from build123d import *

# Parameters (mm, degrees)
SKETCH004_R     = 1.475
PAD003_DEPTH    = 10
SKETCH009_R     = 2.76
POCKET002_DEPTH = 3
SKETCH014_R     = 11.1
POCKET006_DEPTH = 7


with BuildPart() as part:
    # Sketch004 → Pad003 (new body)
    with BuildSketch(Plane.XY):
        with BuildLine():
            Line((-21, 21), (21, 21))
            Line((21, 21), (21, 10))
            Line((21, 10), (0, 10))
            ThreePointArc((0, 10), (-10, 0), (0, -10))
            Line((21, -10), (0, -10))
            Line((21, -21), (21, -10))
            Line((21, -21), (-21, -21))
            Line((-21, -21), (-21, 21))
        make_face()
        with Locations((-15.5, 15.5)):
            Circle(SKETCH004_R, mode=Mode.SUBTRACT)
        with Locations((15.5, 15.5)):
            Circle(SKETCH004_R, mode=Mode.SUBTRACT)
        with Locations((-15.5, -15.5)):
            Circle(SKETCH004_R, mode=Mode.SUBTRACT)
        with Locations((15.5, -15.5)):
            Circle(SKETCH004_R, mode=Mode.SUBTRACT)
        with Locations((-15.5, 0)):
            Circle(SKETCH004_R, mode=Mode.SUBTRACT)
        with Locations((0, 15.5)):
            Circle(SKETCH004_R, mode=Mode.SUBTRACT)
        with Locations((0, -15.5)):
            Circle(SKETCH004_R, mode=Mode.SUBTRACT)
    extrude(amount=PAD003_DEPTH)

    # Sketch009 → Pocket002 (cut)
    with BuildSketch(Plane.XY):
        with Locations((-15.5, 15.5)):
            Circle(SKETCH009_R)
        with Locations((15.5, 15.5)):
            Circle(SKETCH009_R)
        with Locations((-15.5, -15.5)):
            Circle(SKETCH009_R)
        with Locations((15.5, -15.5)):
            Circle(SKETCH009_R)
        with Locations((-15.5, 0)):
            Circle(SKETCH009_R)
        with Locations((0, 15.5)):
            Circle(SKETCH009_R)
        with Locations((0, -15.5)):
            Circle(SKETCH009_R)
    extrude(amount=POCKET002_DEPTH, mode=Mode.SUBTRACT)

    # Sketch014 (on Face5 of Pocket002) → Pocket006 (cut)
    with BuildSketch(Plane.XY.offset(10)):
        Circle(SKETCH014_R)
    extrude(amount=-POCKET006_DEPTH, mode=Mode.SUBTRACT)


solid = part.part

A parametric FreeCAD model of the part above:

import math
import FreeCAD as App
import Part
import Sketcher

doc = App.newDocument("Part")
body = doc.addObject("PartDesign::Body", "Body")

# Sketch on XY plane
sketch1 = body.newObject("Sketcher::SketchObject", "Sketch")
sketch1.AttachmentSupport = (doc.getObject("XY_Plane"), [""])
sketch1.MapMode = "FlatFace"
sketch1.addGeometry(Part.LineSegment(App.Vector(21, 21, 0), App.Vector(-21, 21, 0)), False)
sketch1.addGeometry(Part.LineSegment(App.Vector(-21, 21, 0), App.Vector(-21, -21, 0)), False)
sketch1.addGeometry(Part.LineSegment(App.Vector(-21, -21, 0), App.Vector(21, -21, 0)), False)
sketch1.addGeometry(Part.LineSegment(App.Vector(21, -21, 0), App.Vector(21, -10, 0)), False)
sketch1.addGeometry(Part.LineSegment(App.Vector(21, -10, 0), App.Vector(0, -10, 0)), False)
sketch1.addGeometry(Part.ArcOfCircle(Part.Circle(App.Vector(0, 0, 0), App.Vector(0, 0, 1), 10), math.radians(90), math.radians(270)), False)
sketch1.addGeometry(Part.LineSegment(App.Vector(0, 10, 0), App.Vector(21, 10, 0)), False)
sketch1.addGeometry(Part.LineSegment(App.Vector(21, 10, 0), App.Vector(21, 21, 0)), False)
sketch1.addGeometry(Part.Circle(App.Vector(15.5, -15.5, 0), App.Vector(0, 0, 1), 1.475), False)
sketch1.addGeometry(Part.Circle(App.Vector(0, -15.5, 0), App.Vector(0, 0, 1), 1.475), False)
sketch1.addGeometry(Part.Circle(App.Vector(-15.5, -15.5, 0), App.Vector(0, 0, 1), 1.475), False)
sketch1.addGeometry(Part.Circle(App.Vector(15.5, 15.5, 0), App.Vector(0, 0, 1), 1.475), False)
sketch1.addGeometry(Part.Circle(App.Vector(-15.5, 0, 0), App.Vector(0, 0, 1), 1.475), False)
sketch1.addGeometry(Part.Circle(App.Vector(0, 15.5, 0), App.Vector(0, 0, 1), 1.475), False)
sketch1.addGeometry(Part.Circle(App.Vector(-15.5, 15.5, 0), App.Vector(0, 0, 1), 1.475), False)
sketch1.addConstraint(Sketcher.Constraint("Coincident", 0, 2, 1, 1))
sketch1.addConstraint(Sketcher.Constraint("Coincident", 1, 2, 2, 1))
sketch1.addConstraint(Sketcher.Constraint("Coincident", 2, 2, 3, 1))
sketch1.addConstraint(Sketcher.Constraint("Coincident", 3, 2, 4, 1))
sketch1.addConstraint(Sketcher.Constraint("Tangent", 4, 2, 5, 2))
sketch1.addConstraint(Sketcher.Constraint("Tangent", 5, 1, 6, 1))
sketch1.addConstraint(Sketcher.Constraint("Coincident", 6, 2, 7, 1))
sketch1.addConstraint(Sketcher.Constraint("Coincident", 7, 2, 0, 1))
sketch1.addConstraint(Sketcher.Constraint("Horizontal", 0))
sketch1.addConstraint(Sketcher.Constraint("Vertical", 1))
sketch1.addConstraint(Sketcher.Constraint("Horizontal", 2))
sketch1.addConstraint(Sketcher.Constraint("Vertical", 3))
sketch1.addConstraint(Sketcher.Constraint("Horizontal", 4))
sketch1.addConstraint(Sketcher.Constraint("Horizontal", 6))
sketch1.addConstraint(Sketcher.Constraint("Vertical", 7))
sketch1.addConstraint(Sketcher.Constraint("Coincident", 5, 3, -1, 1))
sketch1.addConstraint(Sketcher.Constraint("Equal", 8, 9))
sketch1.addConstraint(Sketcher.Constraint("Equal", 9, 10))
sketch1.addConstraint(Sketcher.Constraint("Equal", 10, 11))
sketch1.addConstraint(Sketcher.Constraint("Equal", 11, 12))
sketch1.addConstraint(Sketcher.Constraint("Equal", 12, 13))
sketch1.addConstraint(Sketcher.Constraint("Equal", 13, 14))
sketch1.addConstraint(Sketcher.Constraint("Symmetric", 10, 3, 11, 3, -1, 1))
sketch1.addConstraint(Sketcher.Constraint("Symmetric", 9, 3, 13, 3, -1, 1))
sketch1.addConstraint(Sketcher.Constraint("Symmetric", 8, 3, 14, 3, -1, 1))
sketch1.addConstraint(Sketcher.Constraint("Symmetric", 0, 2, 2, 2, -1, 1))
sketch1.addConstraint(Sketcher.Constraint("Symmetric", 8, 3, 10, 3, -2))
sketch1.addConstraint(Sketcher.Constraint("PointOnObject", 9, 3, -2))
sketch1.addConstraint(Sketcher.Constraint("PointOnObject", 12, 3, -1))
sketch1.addConstraint(Sketcher.Constraint("Horizontal", 8, 3, 9, 3))
sketch1.addConstraint(Sketcher.Constraint("Vertical", 10, 3, 12, 3))
sketch1.addConstraint(Sketcher.Constraint("Vertical", 3, 2, 6, 2))
sketch1.addConstraint(Sketcher.Constraint("Equal", 2, 1))
sketch1.addConstraint(Sketcher.Constraint("Radius", 5, 10.0))
sketch1.addConstraint(Sketcher.Constraint("Diameter", 8, 2.95))
sketch1.addConstraint(Sketcher.Constraint("DistanceX", 0, 2, 0, 1, 42.0))
sketch1.addConstraint(Sketcher.Constraint("DistanceX", 10, 3, 8, 3, 31.0))
sketch1.addConstraint(Sketcher.Constraint("DistanceY", 8, 3, 11, 3, 31.0))
pad1 = body.newObject("PartDesign::Pad", "Pad")
pad1.Profile = sketch1
pad1.Length = 10

# Sketch on XY plane
sketch2 = body.newObject("Sketcher::SketchObject", "Sketch001")
sketch2.AttachmentSupport = (doc.getObject("XY_Plane"), [""])
sketch2.MapMode = "FlatFace"
sketch2.addGeometry(Part.Circle(App.Vector(-15.5, 15.5, 0), App.Vector(0, 0, 1), 2.76), False)
sketch2.addGeometry(Part.Circle(App.Vector(15.5, 15.5, 0), App.Vector(0, 0, 1), 2.76), False)
sketch2.addGeometry(Part.Circle(App.Vector(-15.5, -15.5, 0), App.Vector(0, 0, 1), 2.76), False)
sketch2.addGeometry(Part.Circle(App.Vector(15.5, -15.5, 0), App.Vector(0, 0, 1), 2.76), False)
sketch2.addGeometry(Part.Circle(App.Vector(-15.5, 0, 0), App.Vector(0, 0, 1), 2.76), False)
sketch2.addGeometry(Part.Circle(App.Vector(0, 15.5, 0), App.Vector(0, 0, 1), 2.76), False)
sketch2.addGeometry(Part.Circle(App.Vector(0, -15.5, 0), App.Vector(0, 0, 1), 2.76), False)
sketch2.addConstraint(Sketcher.Constraint("Equal", 0, 1))
sketch2.addConstraint(Sketcher.Constraint("Equal", 1, 2))
sketch2.addConstraint(Sketcher.Constraint("Equal", 2, 3))
sketch2.addConstraint(Sketcher.Constraint("Equal", 3, 4))
sketch2.addConstraint(Sketcher.Constraint("Equal", 4, 5))
sketch2.addConstraint(Sketcher.Constraint("Equal", 5, 6))
sketch2.addConstraint(Sketcher.Constraint("Symmetric", 1, 3, 2, 3, -1, 1))
sketch2.addConstraint(Sketcher.Constraint("Symmetric", 0, 3, 3, 3, -1, 1))
sketch2.addConstraint(Sketcher.Constraint("Symmetric", 5, 3, 6, 3, -1, 1))
sketch2.addConstraint(Sketcher.Constraint("Symmetric", 0, 3, 1, 3, -2))
sketch2.addConstraint(Sketcher.Constraint("PointOnObject", 4, 3, -1))
sketch2.addConstraint(Sketcher.Constraint("PointOnObject", 5, 3, -2))
sketch2.addConstraint(Sketcher.Constraint("Horizontal", 1, 3, 5, 3))
sketch2.addConstraint(Sketcher.Constraint("Vertical", 2, 3, 4, 3))
sketch2.addConstraint(Sketcher.Constraint("Diameter", 0, 5.52))
sketch2.addConstraint(Sketcher.Constraint("DistanceX", 0, 3, 1, 3, 31.0))
sketch2.addConstraint(Sketcher.Constraint("DistanceY", 2, 3, 0, 3, 31.0))
pocket1 = body.newObject("PartDesign::Pocket", "Pocket")
pocket1.Profile = sketch2
pocket1.Length = 3
pocket1.Reversed = True

# Sketch on XY plane
sketch3 = body.newObject("Sketcher::SketchObject", "Sketch002")
sketch3.AttachmentSupport = (doc.getObject("XY_Plane"), [""])
sketch3.MapMode = "FlatFace"
sketch3.AttachmentOffset = App.Placement(App.Vector(0, 0, 10), App.Rotation())
sketch3.addGeometry(Part.Circle(App.Vector(0, 0, 0), App.Vector(0, 0, 1), 11.1), False)
sketch3.addConstraint(Sketcher.Constraint("Coincident", 0, 3, -1, 1))
sketch3.addConstraint(Sketcher.Constraint("Diameter", 0, 22.2))
pocket2 = body.newObject("PartDesign::Pocket", "Pocket001")
pocket2.Profile = sketch3
pocket2.Length = 7

doc.recompute()
